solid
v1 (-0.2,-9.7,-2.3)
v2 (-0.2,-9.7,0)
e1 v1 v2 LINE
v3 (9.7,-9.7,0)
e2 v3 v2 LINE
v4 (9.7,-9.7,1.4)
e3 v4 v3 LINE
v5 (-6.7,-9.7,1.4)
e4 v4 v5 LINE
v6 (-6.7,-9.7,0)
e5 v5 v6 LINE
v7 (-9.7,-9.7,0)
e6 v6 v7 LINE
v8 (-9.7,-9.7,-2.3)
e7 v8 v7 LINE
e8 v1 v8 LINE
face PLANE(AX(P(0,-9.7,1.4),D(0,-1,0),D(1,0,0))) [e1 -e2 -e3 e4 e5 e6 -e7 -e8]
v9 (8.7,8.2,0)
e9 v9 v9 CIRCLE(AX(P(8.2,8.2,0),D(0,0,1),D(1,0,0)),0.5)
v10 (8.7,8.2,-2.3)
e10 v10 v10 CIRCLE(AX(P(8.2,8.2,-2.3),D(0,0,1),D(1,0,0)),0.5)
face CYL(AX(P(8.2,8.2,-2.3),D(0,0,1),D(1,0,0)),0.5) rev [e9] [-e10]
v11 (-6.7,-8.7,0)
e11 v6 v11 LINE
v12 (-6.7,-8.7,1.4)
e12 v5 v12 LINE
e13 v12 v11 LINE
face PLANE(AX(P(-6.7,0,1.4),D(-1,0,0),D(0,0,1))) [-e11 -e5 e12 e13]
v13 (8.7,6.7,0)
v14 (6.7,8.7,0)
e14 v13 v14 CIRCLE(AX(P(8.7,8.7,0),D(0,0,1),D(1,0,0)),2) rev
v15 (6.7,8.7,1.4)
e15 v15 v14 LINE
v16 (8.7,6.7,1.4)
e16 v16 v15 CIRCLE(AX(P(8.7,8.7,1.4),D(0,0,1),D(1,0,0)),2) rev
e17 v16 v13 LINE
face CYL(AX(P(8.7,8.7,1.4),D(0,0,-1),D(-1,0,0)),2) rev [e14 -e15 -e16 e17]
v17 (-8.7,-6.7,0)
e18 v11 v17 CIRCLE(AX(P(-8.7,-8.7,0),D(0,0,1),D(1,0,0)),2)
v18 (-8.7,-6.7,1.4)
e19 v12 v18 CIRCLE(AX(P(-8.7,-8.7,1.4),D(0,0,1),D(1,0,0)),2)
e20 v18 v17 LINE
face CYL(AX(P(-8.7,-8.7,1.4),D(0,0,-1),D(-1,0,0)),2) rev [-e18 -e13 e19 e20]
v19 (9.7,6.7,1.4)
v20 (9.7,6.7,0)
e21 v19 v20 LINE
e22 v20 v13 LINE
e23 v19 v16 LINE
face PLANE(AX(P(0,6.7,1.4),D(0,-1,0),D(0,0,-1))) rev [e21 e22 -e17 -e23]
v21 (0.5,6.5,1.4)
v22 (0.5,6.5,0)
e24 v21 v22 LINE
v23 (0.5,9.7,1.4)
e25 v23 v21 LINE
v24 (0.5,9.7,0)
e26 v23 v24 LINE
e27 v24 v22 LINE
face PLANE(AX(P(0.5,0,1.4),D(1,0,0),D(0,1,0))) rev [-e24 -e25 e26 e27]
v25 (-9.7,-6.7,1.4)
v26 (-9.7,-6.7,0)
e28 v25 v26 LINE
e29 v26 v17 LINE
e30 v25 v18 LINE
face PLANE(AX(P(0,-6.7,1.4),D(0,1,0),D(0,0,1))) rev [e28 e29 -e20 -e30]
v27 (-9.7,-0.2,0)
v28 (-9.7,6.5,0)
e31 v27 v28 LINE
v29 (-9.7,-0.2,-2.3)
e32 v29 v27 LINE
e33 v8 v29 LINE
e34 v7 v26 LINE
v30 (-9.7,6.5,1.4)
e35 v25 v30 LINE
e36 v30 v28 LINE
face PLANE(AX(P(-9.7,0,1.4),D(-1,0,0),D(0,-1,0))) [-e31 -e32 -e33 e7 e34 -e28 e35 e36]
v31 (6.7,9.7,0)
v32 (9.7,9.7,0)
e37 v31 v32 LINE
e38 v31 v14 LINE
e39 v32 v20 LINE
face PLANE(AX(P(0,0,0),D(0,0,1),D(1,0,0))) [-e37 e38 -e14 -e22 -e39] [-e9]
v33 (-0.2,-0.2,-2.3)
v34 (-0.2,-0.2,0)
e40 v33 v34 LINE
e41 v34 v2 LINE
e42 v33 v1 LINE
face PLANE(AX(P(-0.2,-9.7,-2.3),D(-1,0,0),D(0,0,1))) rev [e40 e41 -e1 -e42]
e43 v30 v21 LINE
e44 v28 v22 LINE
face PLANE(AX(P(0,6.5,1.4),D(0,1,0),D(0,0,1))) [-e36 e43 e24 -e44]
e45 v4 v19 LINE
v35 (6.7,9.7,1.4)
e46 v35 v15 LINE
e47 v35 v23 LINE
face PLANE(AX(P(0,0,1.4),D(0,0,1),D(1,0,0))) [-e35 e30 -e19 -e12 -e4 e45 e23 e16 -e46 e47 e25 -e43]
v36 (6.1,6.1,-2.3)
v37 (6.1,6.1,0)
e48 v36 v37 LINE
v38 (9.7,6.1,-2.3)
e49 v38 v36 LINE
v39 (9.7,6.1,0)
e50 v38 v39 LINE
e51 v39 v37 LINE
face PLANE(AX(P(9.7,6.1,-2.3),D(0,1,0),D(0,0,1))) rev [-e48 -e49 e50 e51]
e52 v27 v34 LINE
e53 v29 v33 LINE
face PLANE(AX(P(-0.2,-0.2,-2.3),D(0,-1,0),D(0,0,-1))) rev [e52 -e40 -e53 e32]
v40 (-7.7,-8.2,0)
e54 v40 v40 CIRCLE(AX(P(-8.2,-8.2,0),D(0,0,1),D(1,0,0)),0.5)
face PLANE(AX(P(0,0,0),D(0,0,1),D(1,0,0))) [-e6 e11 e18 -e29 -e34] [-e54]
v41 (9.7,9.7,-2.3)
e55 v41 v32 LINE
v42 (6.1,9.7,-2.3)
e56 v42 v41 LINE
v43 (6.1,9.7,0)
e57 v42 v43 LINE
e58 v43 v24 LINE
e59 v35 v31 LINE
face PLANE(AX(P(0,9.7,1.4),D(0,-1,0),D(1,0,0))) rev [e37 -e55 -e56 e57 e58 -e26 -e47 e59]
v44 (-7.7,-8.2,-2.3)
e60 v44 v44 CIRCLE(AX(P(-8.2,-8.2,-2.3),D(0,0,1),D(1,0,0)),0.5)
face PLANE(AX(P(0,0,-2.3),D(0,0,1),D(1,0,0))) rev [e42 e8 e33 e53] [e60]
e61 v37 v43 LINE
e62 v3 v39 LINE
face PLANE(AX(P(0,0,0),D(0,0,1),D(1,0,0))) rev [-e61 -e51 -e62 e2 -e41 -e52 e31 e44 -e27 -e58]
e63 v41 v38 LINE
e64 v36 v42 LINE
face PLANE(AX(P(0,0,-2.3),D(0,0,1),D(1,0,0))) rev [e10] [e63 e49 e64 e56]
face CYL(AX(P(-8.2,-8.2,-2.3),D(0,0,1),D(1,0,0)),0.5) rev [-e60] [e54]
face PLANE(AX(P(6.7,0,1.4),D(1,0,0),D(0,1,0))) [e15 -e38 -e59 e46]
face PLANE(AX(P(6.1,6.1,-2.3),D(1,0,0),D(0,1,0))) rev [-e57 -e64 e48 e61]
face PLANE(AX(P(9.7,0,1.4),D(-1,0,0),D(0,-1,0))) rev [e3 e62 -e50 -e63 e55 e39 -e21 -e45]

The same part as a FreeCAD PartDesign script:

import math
import FreeCAD as App
import Part
import Sketcher
from FreeCAD import Vector
Q = App.Units.Quantity


def add_polygon(sketch, points):
    """Adds a closed chain of lines whose ends are joined by coincident constraints."""
    first, n = sketch.GeometryCount, len(points)
    for a, b in zip(points, points[1:] + points[:1]):
        sketch.addGeometry(Part.LineSegment(App.Vector(*a, 0), App.Vector(*b, 0)), False)
    for i in range(n):
        sketch.addConstraint(Sketcher.Constraint("Coincident", first + i, 2, first + (i + 1) % n, 1))

doc = App.newDocument("Part")
body = doc.addObject("PartDesign::Body", "Body")

sketch1 = body.newObject("Sketcher::SketchObject", "Sketch")
sketch1.AttachmentSupport = (doc.getObject("XY_Plane"), [""])
sketch1.MapMode = "FlatFace"
sketch1.addGeometry([
    Part.LineSegment(Vector(-6.7, -9.7, 0), Vector(9.7, -9.7, 0)),
    Part.LineSegment(Vector(9.7, -9.7, 0), Vector(9.7, 6.7, 0)),
    Part.LineSegment(Vector(9.7, 6.7, 0), Vector(8.7, 6.7, 0)),
    Part.ArcOfCircle(Part.Circle(Vector(8.7, 8.7, 0), Vector(0, 0, 1), 2), math.radians(-180), math.radians(-90)),
    Part.LineSegment(Vector(6.7, 8.7, 0), Vector(6.7, 9.7, 0)),
    Part.LineSegment(Vector(6.7, 9.7, 0), Vector(0.5, 9.7, 0)),
    Part.LineSegment(Vector(0.5, 9.7, 0), Vector(0.5, 6.5, 0)),
    Part.LineSegment(Vector(0.5, 6.5, 0), Vector(-9.7, 6.5, 0)),
    Part.LineSegment(Vector(-9.7, 6.5, 0), Vector(-9.7, -6.7, 0)),
    Part.LineSegment(Vector(-9.7, -6.7, 0), Vector(-8.7, -6.7, 0)),
    Part.ArcOfCircle(Part.Circle(Vector(-8.7, -8.7, 0), Vector(0, 0, 1), 2), math.radians(0), math.radians(90)),
    Part.LineSegment(Vector(-6.7, -8.7, 0), Vector(-6.7, -9.7, 0)),
], False)
sketch1.addConstraint([
    Sketcher.Constraint("Coincident", 0, 2, 1, 1),
    Sketcher.Constraint("Coincident", 1, 2, 2, 1),
    Sketcher.Constraint("Tangent", 2, 2, 3, 2),
    Sketcher.Constraint("Tangent", 3, 1, 4, 1),
    Sketcher.Constraint("Coincident", 4, 2, 5, 1),
    Sketcher.Constraint("Coincident", 5, 2, 6, 1),
    Sketcher.Constraint("Coincident", 6, 2, 7, 1),
    Sketcher.Constraint("Coincident", 7, 2, 8, 1),
    Sketcher.Constraint("Coincident", 8, 2, 9, 1),
    Sketcher.Constraint("Tangent", 9, 2, 10, 2),
    Sketcher.Constraint("Tangent", 10, 1, 11, 1),
    Sketcher.Constraint("Coincident", 11, 2, 0, 1),
    Sketcher.Constraint("Horizontal", 0),
    Sketcher.Constraint("Vertical", 1),
    Sketcher.Constraint("Horizontal", 2),
    Sketcher.Constraint("Vertical", 4),
    Sketcher.Constraint("Horizontal", 5),
    Sketcher.Constraint("Vertical", 6),
    Sketcher.Constraint("Horizontal", 7),
    Sketcher.Constraint("Vertical", 8),
    Sketcher.Constraint("Horizontal", 9),
    Sketcher.Constraint("Vertical", 11),
    Sketcher.Constraint("Equal", 3, 10),
    Sketcher.Constraint("Symmetric", 3, 3, 10, 3, -1, 1),
    Sketcher.Constraint("Equal", 2, 9),
    Sketcher.Constraint("Equal", 0, 1),
    Sketcher.Constraint("Equal", 9, 4),
    Sketcher.Constraint("Equal", 4, 11),
    Sketcher.Constraint("Radius", 3, Q("2 mm")),
    Sketcher.Constraint("DistanceX", 2, 2, 2, 1, Q("1 mm")),
    Sketcher.Constraint("DistanceX", 0, 1, 0, 2, Q("16.4 mm")),
    Sketcher.Constraint("DistanceX", 5, 2, 5, 1, Q("6.2 mm")),
    Sketcher.Constraint("DistanceY", 6, 2, 6, 1, Q("3.2 mm")),
])
pad1 = body.newObject("PartDesign::Pad", "Pad")
pad1.Profile = sketch1
pad1.Length = 1.4

sketch2 = body.newObject("Sketcher::SketchObject", "Sketch001")
sketch2.AttachmentSupport = (doc.getObject("XY_Plane"), [""])
sketch2.MapMode = "FlatFace"
add_polygon(sketch2, [(9.7, 9.7), (9.7, 6.1), (6.1, 6.1), (6.1, 9.7)])
add_polygon(sketch2, [(-0.2, -0.2), (-0.2, -9.7), (-9.7, -9.7), (-9.7, -0.2)])
sketch2.addConstraint([
    Sketcher.Constraint("Vertical", 0),
    Sketcher.Constraint("Horizontal", 1),
    Sketcher.Constraint("Vertical", 2),
    Sketcher.Constraint("Horizontal", 3),
    Sketcher.Constraint("Vertical", 4),
    Sketcher.Constraint("Horizontal", 5),
    Sketcher.Constraint("Vertical", 6),
    Sketcher.Constraint("Horizontal", 7),
    Sketcher.Constraint("Symmetric", 3, 2, 5, 2, -1, 1),
    Sketcher.Constraint("Equal", 3, 0),
    Sketcher.Constraint("Equal", 7, 4),
    Sketcher.Constraint("DistanceX", 1, 2, 1, 1, Q("3.6 mm")),
    Sketcher.Constraint("DistanceX", 5, 2, 5, 1, Q("9.5 mm")),
    Sketcher.Constraint("DistanceX", -1, 1, 0, 2, Q("9.7 mm")),
    Sketcher.Constraint("DistanceY", -1, 1, 0, 2, Q("6.1 mm")),
])
pad2 = body.newObject("PartDesign::Pad", "Pad001")
pad2.Profile = sketch2
pad2.Length = 2.3
pad2.Reversed = True

sketch3 = body.newObject("Sketcher::SketchObject", "Sketch002")
sketch3.AttachmentSupport = (doc.getObject("XY_Plane"), [""])
sketch3.MapMode = "FlatFace"
sketch3.addGeometry([
    Part.Circle(Vector(8.2, 8.2, 0), Vector(0, 0, 1), 0.5),
    Part.Circle(Vector(-8.2, -8.2, 0), Vector(0, 0, 1), 0.5),
], False)
sketch3.addConstraint([
    Sketcher.Constraint("Equal", 0, 1),
    Sketcher.Constraint("Symmetric", 0, 3, 1, 3, -1, 1),
    Sketcher.Constraint("Diameter", 0, Q("1 mm")),
    Sketcher.Constraint("DistanceX", -1, 1, 0, 3, Q("8.2 mm")),
    Sketcher.Constraint("DistanceY", -1, 1, 0, 3, Q("8.2 mm")),
])
pocket1 = body.newObject("PartDesign::Pocket", "Pocket")
pocket1.Profile = sketch3
pocket1.Type = "ThroughAll"
pocket1.Midplane = True

doc.recompute()
